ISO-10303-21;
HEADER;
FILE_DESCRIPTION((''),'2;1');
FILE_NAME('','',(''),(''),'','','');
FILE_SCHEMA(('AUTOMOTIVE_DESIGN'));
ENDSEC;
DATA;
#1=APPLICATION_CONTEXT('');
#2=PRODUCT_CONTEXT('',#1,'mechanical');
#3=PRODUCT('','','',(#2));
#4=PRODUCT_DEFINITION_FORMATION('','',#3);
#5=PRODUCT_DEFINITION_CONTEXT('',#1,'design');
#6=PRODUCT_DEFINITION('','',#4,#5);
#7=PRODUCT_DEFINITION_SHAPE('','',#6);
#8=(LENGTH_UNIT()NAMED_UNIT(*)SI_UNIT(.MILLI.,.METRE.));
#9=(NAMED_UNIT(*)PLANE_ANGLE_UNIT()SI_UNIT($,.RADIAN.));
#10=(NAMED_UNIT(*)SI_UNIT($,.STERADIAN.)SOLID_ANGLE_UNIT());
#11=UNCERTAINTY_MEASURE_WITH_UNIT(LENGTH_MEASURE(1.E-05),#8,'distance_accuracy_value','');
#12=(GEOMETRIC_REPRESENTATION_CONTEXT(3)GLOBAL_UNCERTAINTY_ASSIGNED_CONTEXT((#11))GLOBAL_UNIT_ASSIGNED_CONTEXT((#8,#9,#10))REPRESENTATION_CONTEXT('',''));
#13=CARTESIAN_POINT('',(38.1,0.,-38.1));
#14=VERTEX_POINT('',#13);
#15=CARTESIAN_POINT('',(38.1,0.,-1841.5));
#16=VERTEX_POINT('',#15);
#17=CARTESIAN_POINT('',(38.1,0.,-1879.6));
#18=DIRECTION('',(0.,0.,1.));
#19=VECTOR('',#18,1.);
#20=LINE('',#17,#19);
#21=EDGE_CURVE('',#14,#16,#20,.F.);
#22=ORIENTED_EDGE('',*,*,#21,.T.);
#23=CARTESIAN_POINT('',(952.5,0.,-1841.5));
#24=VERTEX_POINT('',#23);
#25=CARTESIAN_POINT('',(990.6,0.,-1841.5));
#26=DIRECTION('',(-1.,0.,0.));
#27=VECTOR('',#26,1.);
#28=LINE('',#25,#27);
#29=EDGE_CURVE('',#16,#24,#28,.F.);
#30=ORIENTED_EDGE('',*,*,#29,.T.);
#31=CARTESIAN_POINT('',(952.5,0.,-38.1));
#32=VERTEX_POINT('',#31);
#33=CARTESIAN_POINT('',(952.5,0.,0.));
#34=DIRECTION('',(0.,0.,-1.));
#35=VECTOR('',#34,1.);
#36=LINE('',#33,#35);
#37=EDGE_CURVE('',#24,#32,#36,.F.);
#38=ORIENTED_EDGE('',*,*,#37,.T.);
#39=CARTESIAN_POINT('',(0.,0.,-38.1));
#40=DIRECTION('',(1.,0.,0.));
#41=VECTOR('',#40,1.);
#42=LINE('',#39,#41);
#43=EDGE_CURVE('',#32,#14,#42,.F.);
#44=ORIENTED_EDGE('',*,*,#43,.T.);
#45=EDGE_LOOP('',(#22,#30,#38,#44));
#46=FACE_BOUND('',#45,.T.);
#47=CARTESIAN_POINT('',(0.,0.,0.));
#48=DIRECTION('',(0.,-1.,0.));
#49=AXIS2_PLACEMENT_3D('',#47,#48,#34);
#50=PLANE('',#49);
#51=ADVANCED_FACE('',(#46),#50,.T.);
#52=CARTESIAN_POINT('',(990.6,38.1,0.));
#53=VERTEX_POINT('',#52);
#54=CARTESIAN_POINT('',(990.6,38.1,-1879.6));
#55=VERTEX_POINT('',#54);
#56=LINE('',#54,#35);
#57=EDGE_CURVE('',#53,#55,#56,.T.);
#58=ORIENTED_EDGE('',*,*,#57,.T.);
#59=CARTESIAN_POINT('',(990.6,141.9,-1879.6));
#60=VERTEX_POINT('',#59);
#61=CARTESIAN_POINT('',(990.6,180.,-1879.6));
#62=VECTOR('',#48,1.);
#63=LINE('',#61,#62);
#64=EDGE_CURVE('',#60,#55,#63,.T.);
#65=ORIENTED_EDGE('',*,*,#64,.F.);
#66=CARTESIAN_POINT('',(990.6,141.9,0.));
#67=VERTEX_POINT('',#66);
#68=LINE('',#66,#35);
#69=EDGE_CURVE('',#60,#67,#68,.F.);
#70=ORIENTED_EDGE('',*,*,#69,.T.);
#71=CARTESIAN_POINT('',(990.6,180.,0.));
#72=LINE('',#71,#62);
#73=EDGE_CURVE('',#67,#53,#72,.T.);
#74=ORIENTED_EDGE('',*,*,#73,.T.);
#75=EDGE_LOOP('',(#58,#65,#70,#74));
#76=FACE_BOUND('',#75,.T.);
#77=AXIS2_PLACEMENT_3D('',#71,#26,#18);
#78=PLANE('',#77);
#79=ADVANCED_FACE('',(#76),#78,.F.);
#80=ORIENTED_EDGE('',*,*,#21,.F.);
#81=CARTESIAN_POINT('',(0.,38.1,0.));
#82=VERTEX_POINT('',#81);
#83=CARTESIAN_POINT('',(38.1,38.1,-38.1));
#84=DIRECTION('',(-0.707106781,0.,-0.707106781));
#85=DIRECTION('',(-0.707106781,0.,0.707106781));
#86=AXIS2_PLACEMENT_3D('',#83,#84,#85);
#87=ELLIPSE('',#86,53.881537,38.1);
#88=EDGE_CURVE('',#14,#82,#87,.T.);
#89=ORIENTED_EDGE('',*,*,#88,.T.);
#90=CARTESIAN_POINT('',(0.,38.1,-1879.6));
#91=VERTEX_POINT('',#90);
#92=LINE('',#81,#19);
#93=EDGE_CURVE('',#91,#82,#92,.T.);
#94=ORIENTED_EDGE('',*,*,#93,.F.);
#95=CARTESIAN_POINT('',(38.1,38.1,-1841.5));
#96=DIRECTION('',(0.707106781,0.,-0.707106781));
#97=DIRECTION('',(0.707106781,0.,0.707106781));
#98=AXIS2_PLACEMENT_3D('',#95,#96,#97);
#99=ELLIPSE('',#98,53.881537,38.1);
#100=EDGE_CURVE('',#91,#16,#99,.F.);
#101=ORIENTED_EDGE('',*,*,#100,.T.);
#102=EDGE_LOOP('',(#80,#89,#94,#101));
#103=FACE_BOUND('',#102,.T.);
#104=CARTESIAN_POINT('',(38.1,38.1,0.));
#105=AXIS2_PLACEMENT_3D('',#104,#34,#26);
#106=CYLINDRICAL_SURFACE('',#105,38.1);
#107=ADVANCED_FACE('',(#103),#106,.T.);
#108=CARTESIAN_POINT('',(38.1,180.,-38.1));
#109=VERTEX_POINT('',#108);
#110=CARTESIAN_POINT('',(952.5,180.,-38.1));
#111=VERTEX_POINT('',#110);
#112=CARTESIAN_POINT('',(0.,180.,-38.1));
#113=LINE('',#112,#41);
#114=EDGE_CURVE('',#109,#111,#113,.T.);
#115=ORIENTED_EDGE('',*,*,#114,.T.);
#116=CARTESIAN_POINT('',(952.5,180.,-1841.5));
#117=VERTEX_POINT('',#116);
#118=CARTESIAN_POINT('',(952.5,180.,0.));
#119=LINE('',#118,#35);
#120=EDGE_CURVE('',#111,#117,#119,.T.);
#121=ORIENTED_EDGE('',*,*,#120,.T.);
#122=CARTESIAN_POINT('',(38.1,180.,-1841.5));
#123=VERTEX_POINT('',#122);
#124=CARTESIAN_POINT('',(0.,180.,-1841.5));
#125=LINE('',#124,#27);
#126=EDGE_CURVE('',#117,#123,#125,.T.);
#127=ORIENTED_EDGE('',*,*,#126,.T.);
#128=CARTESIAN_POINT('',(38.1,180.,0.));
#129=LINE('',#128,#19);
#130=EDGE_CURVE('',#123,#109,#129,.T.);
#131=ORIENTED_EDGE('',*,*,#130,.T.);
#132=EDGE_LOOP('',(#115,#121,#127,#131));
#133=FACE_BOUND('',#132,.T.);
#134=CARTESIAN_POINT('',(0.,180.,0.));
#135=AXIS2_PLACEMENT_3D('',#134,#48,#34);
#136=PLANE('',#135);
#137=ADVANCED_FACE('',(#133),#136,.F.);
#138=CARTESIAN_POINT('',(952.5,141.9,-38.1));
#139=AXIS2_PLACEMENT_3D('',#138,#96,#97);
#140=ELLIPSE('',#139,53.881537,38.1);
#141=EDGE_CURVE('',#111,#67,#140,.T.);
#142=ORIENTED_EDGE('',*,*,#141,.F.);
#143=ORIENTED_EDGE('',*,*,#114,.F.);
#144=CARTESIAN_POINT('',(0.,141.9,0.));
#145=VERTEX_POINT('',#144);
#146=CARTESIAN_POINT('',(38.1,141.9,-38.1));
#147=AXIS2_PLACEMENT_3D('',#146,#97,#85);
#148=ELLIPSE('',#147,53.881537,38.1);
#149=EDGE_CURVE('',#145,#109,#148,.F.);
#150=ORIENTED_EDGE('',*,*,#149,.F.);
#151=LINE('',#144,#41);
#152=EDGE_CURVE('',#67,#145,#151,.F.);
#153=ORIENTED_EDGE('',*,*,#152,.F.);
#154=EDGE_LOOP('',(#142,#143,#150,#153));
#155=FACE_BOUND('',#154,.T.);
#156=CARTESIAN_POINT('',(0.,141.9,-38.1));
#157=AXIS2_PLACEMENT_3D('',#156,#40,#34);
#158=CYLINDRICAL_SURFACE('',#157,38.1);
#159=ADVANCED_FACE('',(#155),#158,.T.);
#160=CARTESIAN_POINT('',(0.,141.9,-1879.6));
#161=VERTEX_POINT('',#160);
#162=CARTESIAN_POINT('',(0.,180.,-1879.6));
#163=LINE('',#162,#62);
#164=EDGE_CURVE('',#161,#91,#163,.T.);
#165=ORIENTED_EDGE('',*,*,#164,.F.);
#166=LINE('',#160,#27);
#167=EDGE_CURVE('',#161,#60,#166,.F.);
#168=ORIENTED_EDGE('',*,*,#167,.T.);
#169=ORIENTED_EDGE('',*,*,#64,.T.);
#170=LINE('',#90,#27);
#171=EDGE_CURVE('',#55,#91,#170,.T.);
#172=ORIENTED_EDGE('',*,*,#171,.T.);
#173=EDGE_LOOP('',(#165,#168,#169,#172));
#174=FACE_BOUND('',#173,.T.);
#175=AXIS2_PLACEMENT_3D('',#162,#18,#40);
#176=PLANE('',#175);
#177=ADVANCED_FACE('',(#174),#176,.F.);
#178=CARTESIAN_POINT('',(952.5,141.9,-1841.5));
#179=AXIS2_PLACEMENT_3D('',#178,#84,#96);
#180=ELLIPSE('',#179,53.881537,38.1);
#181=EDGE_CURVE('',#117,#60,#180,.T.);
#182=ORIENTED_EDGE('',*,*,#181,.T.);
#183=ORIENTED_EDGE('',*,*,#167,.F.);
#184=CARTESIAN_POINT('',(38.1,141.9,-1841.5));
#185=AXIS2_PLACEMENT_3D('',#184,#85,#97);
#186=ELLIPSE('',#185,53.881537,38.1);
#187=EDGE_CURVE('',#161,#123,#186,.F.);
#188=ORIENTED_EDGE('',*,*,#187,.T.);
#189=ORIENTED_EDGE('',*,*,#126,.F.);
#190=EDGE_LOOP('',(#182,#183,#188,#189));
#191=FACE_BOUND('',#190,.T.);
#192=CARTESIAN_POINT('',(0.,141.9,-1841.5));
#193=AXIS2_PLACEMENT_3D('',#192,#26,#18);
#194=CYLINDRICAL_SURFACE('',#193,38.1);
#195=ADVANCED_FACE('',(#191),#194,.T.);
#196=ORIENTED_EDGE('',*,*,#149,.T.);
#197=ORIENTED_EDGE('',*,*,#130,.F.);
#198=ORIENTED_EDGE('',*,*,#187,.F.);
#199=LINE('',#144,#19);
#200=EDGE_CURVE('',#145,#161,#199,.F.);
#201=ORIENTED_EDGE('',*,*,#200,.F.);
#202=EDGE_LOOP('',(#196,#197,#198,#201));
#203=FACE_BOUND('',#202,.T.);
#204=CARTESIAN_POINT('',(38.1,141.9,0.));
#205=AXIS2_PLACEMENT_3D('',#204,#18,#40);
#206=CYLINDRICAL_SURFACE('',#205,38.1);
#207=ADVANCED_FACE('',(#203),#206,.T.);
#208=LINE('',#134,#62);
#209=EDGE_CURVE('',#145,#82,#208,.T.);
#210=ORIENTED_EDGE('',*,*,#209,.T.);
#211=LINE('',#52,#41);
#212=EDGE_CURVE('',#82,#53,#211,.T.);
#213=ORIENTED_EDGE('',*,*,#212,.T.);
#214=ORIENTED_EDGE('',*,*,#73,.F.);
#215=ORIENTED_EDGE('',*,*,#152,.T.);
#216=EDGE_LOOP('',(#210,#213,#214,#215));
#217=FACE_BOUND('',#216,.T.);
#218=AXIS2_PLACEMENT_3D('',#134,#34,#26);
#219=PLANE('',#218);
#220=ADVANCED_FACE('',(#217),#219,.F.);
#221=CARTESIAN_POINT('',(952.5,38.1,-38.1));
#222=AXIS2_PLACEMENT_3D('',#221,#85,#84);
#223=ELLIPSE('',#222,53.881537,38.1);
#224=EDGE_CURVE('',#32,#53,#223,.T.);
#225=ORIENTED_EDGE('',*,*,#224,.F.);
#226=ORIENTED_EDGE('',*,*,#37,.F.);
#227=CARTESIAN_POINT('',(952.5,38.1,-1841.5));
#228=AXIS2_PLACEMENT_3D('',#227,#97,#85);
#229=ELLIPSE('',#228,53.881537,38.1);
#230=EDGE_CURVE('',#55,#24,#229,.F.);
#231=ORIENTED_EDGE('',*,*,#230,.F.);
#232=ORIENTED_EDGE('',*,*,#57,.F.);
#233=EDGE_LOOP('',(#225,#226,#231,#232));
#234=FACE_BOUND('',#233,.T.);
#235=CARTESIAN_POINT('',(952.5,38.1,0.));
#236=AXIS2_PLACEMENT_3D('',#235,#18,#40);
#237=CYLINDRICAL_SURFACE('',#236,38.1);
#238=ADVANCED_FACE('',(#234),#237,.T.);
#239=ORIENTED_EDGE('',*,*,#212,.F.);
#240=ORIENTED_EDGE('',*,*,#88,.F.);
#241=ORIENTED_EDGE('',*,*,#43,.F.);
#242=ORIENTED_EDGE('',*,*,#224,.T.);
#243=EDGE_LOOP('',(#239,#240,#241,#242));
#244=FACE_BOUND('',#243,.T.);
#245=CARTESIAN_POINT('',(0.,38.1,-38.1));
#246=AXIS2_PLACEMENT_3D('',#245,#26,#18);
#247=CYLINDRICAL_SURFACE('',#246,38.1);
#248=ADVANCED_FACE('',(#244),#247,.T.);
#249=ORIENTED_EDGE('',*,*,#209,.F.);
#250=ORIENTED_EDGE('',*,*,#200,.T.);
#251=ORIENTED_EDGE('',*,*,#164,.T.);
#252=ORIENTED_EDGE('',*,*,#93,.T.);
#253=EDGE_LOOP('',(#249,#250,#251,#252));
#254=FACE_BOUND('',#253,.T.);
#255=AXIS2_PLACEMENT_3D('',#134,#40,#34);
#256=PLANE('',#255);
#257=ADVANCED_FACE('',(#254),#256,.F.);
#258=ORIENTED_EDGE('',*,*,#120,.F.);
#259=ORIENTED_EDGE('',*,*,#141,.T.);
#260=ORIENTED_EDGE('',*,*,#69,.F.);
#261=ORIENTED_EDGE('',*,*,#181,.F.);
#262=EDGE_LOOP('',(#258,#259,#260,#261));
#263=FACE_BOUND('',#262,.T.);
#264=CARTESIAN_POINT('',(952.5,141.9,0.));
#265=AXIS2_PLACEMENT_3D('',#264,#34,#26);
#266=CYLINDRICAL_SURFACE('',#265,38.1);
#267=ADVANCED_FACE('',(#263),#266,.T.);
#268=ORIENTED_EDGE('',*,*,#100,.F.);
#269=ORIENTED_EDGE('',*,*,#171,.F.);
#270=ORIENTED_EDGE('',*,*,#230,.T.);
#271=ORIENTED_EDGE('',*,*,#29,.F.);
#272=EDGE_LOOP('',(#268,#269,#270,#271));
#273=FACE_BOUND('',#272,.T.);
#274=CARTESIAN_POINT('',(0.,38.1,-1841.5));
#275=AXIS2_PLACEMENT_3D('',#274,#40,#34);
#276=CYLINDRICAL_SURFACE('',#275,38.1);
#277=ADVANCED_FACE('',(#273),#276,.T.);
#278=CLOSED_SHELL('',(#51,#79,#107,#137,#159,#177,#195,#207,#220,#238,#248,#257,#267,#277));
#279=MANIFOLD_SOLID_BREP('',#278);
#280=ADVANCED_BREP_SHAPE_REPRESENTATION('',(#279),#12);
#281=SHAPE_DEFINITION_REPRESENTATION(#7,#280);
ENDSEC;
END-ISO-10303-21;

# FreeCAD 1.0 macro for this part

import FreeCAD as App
import Part
import Sketcher
from FreeCAD import Vector
Q = App.Units.Quantity


def edges_at(feature, points):
    """Names of the edges that pass closest to the given points."""
    edges = feature.Shape.Edges
    near = lambda p: min(range(len(edges)), key=lambda i: edges[i].distToShape(Part.Vertex(*p))[0])
    return sorted({f"Edge{near(p) + 1}" for p in points})

doc = App.newDocument("Part")
body = doc.addObject("PartDesign::Body", "Body")

# Sketch on XZ plane
sketch1 = body.newObject("Sketcher::SketchObject", "Sketch")
sketch1.AttachmentSupport = (doc.getObject("XZ_Plane"), [""])
sketch1.MapMode = "FlatFace"
sketch1.addGeometry([
    Part.LineSegment(Vector(0, -1880, 0), Vector(0, 0, 0)),
    Part.LineSegment(Vector(0, 0, 0), Vector(991, 0, 0)),
    Part.LineSegment(Vector(991, 0, 0), Vector(991, -1880, 0)),
    Part.LineSegment(Vector(991, -1880, 0), Vector(0, -1880, 0)),
], False)
sketch1.addConstraint([
    Sketcher.Constraint("Coincident", 0, 2, 1, 1),
    Sketcher.Constraint("Coincident", 1, 2, 2, 1),
    Sketcher.Constraint("Coincident", 2, 2, 3, 1),
    Sketcher.Constraint("Coincident", 3, 2, 0, 1),
    Sketcher.Constraint("Vertical", 0),
    Sketcher.Constraint("Horizontal", 1),
    Sketcher.Constraint("Vertical", 2),
    Sketcher.Constraint("Horizontal", 3),
    Sketcher.Constraint("Coincident", 0, 2, -1, 1),
    Sketcher.Constraint("DistanceX", 1, 1, 1, 2, Q("39 in")),
    Sketcher.Constraint("DistanceY", 0, 1, 0, 2, Q("74 in")),
])
pad1 = body.newObject("PartDesign::Pad", "Pad")
pad1.Profile = sketch1
pad1.Length = 180
pad1.Reversed = True
doc.recompute()

fillet = body.newObject("PartDesign::Fillet", "Fillet")
fillet.Base = (pad1, edges_at(pad1, [
    (990.6, 180, -939.8),
    (495.3, 180, -1879.6),
    (0, 180, -939.8),
    (495.3, 0, -1879.6),
    (990.6, 0, -939.8),
    (495.3, 0, 0),
    (0, 0, -939.8),
    (495.3, 180, 0),
]))
fillet.Radius = Q("1.5 in")

doc.recompute()
